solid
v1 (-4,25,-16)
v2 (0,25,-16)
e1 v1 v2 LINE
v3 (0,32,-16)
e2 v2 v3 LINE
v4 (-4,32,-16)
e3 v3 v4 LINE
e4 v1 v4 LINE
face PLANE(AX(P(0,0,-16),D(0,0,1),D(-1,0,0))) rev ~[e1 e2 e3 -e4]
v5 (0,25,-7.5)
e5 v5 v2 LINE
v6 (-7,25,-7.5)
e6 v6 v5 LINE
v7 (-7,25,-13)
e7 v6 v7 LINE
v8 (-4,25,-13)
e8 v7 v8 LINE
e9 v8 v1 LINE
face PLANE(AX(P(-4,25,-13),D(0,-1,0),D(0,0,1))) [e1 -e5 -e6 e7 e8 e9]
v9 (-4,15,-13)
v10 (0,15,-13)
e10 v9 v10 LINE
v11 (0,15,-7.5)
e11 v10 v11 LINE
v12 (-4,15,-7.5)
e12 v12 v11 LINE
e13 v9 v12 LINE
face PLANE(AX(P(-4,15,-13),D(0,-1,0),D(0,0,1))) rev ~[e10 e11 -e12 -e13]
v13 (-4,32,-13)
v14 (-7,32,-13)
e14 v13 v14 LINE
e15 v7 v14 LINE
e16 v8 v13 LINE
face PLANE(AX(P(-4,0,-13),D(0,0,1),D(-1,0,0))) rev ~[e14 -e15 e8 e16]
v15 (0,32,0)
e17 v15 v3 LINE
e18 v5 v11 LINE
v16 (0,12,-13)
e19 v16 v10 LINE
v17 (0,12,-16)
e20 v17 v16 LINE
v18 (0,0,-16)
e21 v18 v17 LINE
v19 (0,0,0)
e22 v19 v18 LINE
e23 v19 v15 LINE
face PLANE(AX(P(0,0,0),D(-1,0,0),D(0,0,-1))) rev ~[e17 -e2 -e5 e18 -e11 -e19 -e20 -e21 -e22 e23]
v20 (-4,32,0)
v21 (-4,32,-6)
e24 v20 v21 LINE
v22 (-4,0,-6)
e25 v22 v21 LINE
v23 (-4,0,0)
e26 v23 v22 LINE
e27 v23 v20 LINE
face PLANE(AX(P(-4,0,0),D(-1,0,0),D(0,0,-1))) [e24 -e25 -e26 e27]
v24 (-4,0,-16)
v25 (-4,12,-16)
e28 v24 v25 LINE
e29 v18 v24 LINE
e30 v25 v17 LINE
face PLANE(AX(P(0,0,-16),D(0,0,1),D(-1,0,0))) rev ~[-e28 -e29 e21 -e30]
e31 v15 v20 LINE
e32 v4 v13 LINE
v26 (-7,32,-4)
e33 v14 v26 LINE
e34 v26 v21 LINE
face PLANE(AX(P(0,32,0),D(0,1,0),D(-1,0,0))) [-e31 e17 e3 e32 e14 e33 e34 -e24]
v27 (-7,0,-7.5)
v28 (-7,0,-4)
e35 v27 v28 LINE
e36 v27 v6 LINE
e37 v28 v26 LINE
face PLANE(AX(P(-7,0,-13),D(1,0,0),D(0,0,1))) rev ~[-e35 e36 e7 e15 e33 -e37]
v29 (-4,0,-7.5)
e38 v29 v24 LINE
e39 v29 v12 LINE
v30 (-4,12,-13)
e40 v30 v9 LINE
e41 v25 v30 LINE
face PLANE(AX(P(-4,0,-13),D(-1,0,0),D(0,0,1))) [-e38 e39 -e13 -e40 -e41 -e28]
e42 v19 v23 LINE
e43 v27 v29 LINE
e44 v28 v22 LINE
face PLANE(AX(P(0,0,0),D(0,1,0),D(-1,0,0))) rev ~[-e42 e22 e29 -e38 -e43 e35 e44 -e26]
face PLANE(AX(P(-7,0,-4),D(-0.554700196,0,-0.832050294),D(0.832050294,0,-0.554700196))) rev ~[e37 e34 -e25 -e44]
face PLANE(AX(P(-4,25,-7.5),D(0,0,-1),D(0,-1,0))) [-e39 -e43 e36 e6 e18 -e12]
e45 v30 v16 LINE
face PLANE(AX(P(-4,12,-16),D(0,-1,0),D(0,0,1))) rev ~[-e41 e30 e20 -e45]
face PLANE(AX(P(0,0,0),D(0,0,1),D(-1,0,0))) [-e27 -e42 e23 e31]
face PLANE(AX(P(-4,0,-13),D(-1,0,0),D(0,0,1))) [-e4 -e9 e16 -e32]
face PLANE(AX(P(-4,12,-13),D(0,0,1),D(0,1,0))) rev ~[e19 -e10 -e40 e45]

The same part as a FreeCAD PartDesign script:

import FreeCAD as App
import Part
import Sketcher


def add_polygon(sketch, points):
    """Adds a closed chain of lines whose ends are joined by coincident constraints."""
    first, n = sketch.GeometryCount, len(points)
    for a, b in zip(points, points[1:] + points[:1]):
        sketch.addGeometry(Part.LineSegment(App.Vector(*a, 0), App.Vector(*b, 0)), False)
    for i in range(n):
        sketch.addConstraint(Sketcher.Constraint("Coincident", first + i, 2, first + (i + 1) % n, 1))

doc = App.newDocument("Part")
body = doc.addObject("PartDesign::Body", "Body")

# Sketch on XZ plane
sketch1 = body.newObject("Sketcher::SketchObject", "Sketch")
sketch1.AttachmentSupport = (doc.getObject("XZ_Plane"), [""])
sketch1.MapMode = "FlatFace"
add_polygon(sketch1, [(-4, 0), (0, 0), (0, -16), (-4, -16), (-4, -13), (-7, -13), (-7, -4), (-4, -6)])  # lines 0-7
sketch1.addConstraint(Sketcher.Constraint("Horizontal", 0))
sketch1.addConstraint(Sketcher.Constraint("Vertical", 1))
sketch1.addConstraint(Sketcher.Constraint("Horizontal", 2))
sketch1.addConstraint(Sketcher.Constraint("Vertical", 3))
sketch1.addConstraint(Sketcher.Constraint("Horizontal", 4))
sketch1.addConstraint(Sketcher.Constraint("Vertical", 5))
sketch1.addConstraint(Sketcher.Constraint("Vertical", 7))
sketch1.addConstraint(Sketcher.Constraint("Coincident", 0, 2, -1, 1))
sketch1.addConstraint(Sketcher.Constraint("Vertical", 3, 2, 6, 2))
sketch1.addConstraint(Sketcher.Constraint("Equal", 4, 3))
sketch1.addConstraint(Sketcher.Constraint("DistanceX", 0, 1, 0, 2, 4.0))
sketch1.addConstraint(Sketcher.Constraint("DistanceX", 4, 2, 4, 1, 3.0))
sketch1.addConstraint(Sketcher.Constraint("DistanceY", 1, 2, 1, 1, 16.0))
sketch1.addConstraint(Sketcher.Constraint("DistanceY", 5, 1, 5, 2, 9.0))
sketch1.addConstraint(Sketcher.Constraint("DistanceY", 7, 1, 7, 2, 6.0))
pad1 = body.newObject("PartDesign::Pad", "Pad")
pad1.Profile = sketch1
pad1.Length = 32
pad1.Reversed = True

# Sketch on YZ plane
sketch2 = body.newObject("Sketcher::SketchObject", "Sketch001")
sketch2.AttachmentSupport = (doc.getObject("YZ_Plane"), [""])
sketch2.MapMode = "FlatFace"
sketch2.AttachmentOffset = App.Placement(App.Vector(0, 0, -7), App.Rotation())
add_polygon(sketch2, [(25, -13), (0, -13), (0, -8), (25, -8)])  # lines 0-3
sketch2.addConstraint(Sketcher.Constraint("Horizontal", 0))
sketch2.addConstraint(Sketcher.Constraint("Vertical", 1))
sketch2.addConstraint(Sketcher.Constraint("Horizontal", 2))
sketch2.addConstraint(Sketcher.Constraint("Vertical", 3))
sketch2.addConstraint(Sketcher.Constraint("PointOnObject", 0, 2, -2))
sketch2.addConstraint(Sketcher.Constraint("DistanceX", 0, 2, 0, 1, 25.0))
sketch2.addConstraint(Sketcher.Constraint("DistanceY", 1, 1, 1, 2, 5.5))
sketch2.addConstraint(Sketcher.Constraint("DistanceY", 0, 2, -1, 1, 13.0))
pocket1 = body.newObject("PartDesign::Pocket", "Pocket")
pocket1.Profile = sketch2
pocket1.Length = 3
pocket1.Reversed = True

# Sketch on YZ plane
sketch3 = body.newObject("Sketcher::SketchObject", "Sketch002")
sketch3.AttachmentSupport = (doc.getObject("YZ_Plane"), [""])
sketch3.MapMode = "FlatFace"
sketch3.AttachmentOffset = App.Placement(App.Vector(0, 0, -4), App.Rotation())
add_polygon(sketch3, [(25, -16), (12, -16), (12, -13), (15, -13), (15, -7.5), (25, -7.5)])  # lines 0-5
sketch3.addConstraint(Sketcher.Constraint("Horizontal", 0))
sketch3.addConstraint(Sketcher.Constraint("Vertical", 1))
sketch3.addConstraint(Sketcher.Constraint("Horizontal", 2))
sketch3.addConstraint(Sketcher.Constraint("Vertical", 3))
sketch3.addConstraint(Sketcher.Constraint("Horizontal", 4))
sketch3.addConstraint(Sketcher.Constraint("Vertical", 5))
sketch3.addConstraint(Sketcher.Constraint("Equal", 2, 1))
sketch3.addConstraint(Sketcher.Constraint("DistanceX", 2, 1, 2, 2, 3.0))
sketch3.addConstraint(Sketcher.Constraint("DistanceX", -1, 1, 0, 2, 12.0))
sketch3.addConstraint(Sketcher.Constraint("DistanceX", 0, 2, 0, 1, 13.0))
sketch3.addConstraint(Sketcher.Constraint("DistanceY", 3, 1, 3, 2, 5.5))
sketch3.addConstraint(Sketcher.Constraint("DistanceY", 0, 2, -1, 1, 16.0))
pocket2 = body.newObject("PartDesign::Pocket", "Pocket001")
pocket2.Profile = sketch3
pocket2.Length = 4
pocket2.Reversed = True

doc.recompute()
